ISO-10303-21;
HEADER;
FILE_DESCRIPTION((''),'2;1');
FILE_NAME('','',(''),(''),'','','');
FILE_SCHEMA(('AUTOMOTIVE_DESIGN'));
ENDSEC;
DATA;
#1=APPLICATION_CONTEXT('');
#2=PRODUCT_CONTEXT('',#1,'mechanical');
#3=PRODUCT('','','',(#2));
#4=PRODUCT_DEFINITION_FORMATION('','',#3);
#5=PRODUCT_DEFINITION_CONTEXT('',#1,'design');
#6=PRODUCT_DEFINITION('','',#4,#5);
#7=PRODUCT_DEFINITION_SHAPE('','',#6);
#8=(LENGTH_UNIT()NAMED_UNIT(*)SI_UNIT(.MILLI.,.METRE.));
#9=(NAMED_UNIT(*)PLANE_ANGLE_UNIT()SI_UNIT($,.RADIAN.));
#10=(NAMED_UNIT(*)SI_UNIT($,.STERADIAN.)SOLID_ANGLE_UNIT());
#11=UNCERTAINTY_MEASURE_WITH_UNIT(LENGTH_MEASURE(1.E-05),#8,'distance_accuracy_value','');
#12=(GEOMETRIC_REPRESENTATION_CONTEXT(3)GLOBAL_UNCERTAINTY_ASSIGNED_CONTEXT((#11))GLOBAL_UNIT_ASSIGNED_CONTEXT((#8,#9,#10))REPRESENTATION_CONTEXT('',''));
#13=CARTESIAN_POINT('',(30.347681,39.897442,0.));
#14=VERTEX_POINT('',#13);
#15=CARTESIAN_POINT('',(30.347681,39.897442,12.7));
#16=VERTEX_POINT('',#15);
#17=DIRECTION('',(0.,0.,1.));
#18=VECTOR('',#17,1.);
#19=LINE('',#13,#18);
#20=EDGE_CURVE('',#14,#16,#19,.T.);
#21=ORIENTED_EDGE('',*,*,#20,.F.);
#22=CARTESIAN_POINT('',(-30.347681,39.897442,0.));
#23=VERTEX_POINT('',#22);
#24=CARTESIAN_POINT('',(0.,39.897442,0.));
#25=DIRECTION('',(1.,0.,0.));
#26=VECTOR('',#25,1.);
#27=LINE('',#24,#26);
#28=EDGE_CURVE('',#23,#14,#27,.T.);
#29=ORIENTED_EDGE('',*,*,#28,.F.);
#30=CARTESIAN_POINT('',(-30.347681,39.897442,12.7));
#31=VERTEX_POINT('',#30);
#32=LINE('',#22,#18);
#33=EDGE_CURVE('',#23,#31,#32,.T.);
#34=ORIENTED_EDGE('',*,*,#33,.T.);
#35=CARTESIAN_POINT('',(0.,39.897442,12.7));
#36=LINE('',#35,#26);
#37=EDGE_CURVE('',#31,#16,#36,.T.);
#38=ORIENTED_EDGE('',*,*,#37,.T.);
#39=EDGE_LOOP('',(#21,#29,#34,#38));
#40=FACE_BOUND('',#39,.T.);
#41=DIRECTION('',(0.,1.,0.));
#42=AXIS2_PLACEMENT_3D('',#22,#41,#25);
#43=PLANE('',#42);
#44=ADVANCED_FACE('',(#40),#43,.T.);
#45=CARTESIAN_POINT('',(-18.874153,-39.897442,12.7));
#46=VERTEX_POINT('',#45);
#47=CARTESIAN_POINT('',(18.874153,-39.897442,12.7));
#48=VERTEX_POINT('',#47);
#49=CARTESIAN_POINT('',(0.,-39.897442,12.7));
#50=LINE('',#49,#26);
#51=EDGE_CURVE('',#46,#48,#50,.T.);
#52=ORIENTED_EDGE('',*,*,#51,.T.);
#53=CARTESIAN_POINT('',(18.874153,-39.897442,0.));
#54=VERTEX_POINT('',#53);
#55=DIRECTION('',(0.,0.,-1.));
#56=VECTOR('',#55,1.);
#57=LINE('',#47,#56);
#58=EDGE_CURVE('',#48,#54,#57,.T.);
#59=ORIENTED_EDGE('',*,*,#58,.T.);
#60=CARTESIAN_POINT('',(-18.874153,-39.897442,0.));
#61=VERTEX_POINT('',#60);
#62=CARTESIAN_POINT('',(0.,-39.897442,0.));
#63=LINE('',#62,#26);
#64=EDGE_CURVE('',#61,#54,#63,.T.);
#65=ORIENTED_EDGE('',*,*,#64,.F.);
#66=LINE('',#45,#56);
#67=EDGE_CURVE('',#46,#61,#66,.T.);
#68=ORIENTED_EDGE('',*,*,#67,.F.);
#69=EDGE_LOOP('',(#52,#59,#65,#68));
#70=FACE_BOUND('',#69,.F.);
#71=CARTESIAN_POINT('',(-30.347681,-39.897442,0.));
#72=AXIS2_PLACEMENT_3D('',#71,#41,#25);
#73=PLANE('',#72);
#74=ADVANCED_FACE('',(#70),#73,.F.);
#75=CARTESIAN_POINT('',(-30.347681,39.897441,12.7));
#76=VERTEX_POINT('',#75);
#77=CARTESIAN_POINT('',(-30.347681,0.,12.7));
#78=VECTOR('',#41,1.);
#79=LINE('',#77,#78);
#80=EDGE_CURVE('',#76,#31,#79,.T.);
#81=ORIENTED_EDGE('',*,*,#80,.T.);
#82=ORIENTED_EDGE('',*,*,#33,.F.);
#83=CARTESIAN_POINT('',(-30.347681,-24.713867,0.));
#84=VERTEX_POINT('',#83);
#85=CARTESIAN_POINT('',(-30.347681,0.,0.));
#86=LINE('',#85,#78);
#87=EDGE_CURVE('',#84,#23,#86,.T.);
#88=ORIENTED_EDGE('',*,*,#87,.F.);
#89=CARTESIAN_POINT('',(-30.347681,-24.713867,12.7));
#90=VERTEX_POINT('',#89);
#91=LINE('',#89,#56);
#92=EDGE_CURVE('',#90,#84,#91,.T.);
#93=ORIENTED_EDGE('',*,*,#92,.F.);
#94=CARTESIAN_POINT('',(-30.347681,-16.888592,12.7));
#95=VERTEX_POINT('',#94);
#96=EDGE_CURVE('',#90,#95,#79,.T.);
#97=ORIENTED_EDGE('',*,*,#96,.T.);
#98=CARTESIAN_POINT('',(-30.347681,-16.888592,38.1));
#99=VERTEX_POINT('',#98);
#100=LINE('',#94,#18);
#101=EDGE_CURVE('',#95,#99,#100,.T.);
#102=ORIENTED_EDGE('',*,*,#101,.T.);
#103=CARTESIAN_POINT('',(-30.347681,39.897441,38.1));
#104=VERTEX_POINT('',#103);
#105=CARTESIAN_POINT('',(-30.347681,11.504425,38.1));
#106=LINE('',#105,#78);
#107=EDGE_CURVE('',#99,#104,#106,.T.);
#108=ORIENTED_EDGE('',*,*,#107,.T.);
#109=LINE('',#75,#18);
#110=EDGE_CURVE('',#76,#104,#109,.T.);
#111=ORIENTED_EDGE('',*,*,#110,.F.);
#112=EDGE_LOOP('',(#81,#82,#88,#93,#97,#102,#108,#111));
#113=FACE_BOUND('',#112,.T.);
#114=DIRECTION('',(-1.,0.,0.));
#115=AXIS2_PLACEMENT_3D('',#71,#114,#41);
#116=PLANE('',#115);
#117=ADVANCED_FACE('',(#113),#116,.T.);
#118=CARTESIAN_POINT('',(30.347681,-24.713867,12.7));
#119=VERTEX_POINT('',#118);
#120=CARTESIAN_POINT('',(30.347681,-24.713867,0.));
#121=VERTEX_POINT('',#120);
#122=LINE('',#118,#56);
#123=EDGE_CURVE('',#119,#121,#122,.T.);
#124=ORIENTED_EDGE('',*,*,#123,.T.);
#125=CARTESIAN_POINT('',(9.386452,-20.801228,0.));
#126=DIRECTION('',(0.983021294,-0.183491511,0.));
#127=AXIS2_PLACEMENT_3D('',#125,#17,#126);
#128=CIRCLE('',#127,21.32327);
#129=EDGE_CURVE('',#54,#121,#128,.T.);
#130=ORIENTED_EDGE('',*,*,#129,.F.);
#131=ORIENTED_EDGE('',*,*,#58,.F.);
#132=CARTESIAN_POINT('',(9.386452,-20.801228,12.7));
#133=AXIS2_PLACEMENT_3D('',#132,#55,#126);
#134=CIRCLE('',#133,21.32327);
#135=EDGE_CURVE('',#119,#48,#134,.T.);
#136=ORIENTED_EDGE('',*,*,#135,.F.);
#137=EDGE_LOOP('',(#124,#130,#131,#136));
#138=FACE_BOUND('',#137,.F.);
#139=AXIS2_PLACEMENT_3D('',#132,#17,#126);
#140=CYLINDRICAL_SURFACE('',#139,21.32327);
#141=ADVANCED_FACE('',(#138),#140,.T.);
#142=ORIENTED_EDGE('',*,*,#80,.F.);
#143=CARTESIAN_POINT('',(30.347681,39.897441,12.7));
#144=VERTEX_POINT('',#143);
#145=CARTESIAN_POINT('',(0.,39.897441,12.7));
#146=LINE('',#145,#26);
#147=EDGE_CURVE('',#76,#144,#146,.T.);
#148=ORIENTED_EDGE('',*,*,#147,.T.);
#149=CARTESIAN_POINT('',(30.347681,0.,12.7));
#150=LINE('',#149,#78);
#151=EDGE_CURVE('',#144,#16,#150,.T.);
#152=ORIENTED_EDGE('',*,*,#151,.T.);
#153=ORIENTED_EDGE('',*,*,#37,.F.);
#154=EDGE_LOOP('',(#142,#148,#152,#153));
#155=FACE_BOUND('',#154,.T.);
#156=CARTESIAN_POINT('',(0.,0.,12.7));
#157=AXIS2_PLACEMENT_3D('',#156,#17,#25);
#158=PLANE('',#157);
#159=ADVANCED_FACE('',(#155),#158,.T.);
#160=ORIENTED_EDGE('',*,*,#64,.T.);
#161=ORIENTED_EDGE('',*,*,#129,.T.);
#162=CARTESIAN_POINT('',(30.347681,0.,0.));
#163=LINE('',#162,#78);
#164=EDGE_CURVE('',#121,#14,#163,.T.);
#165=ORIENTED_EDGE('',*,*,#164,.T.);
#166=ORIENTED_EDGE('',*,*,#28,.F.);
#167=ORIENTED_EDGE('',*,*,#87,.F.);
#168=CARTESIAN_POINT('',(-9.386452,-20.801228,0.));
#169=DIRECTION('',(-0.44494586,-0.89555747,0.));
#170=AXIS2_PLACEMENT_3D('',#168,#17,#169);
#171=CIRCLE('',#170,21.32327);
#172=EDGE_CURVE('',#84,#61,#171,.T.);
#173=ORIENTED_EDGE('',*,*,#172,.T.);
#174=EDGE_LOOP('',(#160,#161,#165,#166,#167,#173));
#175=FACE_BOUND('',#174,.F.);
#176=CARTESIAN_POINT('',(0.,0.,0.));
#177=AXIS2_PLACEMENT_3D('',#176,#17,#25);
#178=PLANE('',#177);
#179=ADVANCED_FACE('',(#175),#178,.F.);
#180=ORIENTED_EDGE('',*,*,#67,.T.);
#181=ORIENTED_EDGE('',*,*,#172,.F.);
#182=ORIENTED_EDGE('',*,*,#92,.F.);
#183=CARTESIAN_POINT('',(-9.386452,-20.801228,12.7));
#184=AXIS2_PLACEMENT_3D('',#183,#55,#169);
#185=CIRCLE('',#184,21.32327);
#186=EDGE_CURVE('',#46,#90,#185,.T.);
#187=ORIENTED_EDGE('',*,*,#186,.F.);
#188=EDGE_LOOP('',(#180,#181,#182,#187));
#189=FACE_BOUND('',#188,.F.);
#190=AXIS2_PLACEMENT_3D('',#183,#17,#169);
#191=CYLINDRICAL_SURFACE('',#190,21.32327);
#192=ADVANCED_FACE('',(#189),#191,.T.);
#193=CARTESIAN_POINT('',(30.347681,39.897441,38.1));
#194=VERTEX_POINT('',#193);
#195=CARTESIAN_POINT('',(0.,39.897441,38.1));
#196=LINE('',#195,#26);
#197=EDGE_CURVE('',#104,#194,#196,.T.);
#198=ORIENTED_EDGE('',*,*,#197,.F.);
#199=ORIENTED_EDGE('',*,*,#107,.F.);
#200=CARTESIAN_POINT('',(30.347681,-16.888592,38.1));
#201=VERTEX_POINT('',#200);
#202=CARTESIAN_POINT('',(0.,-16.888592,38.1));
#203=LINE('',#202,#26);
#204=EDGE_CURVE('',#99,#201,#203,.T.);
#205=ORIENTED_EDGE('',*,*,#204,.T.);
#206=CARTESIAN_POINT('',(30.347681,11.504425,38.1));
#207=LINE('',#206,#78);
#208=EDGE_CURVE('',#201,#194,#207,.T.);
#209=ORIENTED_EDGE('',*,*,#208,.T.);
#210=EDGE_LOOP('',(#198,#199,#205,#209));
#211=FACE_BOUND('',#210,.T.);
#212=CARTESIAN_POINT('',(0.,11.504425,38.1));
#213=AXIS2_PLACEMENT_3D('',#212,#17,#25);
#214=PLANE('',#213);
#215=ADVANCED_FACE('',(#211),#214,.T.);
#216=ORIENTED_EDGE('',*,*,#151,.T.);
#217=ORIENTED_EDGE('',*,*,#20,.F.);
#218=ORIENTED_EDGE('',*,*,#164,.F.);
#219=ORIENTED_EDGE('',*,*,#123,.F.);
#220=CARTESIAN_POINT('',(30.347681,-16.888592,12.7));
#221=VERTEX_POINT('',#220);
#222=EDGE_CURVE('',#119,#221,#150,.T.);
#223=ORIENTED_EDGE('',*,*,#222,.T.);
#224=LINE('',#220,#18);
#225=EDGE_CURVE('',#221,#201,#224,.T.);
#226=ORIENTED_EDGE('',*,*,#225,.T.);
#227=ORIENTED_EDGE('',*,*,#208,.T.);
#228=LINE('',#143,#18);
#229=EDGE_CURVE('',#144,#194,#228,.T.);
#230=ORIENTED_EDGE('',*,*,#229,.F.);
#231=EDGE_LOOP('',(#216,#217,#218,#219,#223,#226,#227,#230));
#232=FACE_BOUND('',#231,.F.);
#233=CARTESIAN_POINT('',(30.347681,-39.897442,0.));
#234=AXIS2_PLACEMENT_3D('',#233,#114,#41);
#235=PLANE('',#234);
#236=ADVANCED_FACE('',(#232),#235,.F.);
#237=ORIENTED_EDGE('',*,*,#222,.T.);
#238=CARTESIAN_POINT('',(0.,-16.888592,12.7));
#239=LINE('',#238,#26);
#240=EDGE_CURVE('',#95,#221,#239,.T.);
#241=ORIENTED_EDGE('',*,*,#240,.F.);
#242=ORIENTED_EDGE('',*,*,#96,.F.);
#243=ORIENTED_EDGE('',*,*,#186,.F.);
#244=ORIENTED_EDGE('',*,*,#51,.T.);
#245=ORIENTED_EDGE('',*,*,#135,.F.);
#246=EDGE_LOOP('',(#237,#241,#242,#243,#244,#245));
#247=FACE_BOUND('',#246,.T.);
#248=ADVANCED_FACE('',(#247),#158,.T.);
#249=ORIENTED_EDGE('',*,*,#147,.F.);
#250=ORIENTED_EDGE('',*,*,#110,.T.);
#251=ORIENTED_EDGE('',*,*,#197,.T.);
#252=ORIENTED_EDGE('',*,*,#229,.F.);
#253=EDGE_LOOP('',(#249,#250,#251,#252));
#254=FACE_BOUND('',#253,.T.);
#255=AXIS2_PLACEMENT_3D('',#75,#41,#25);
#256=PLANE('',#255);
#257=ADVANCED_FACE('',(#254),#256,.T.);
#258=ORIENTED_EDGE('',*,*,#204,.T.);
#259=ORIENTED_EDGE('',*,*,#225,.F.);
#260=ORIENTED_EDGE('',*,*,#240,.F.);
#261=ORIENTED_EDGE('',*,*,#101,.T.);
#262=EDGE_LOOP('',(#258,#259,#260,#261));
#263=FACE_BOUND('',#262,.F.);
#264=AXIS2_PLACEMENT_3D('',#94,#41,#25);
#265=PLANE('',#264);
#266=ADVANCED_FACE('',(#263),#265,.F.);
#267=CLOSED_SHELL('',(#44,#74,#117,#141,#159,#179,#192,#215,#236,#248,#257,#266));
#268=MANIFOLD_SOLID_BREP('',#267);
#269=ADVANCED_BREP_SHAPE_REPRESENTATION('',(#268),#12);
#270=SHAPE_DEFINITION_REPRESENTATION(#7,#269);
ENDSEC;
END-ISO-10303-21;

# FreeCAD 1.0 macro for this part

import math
import FreeCAD as App
import Part
import Sketcher
from FreeCAD import Vector


def add_polygon(sketch, points):
    """Adds a closed chain of lines whose ends are joined by coincident constraints."""
    first, n = sketch.GeometryCount, len(points)
    for a, b in zip(points, points[1:] + points[:1]):
        sketch.addGeometry(Part.LineSegment(App.Vector(*a, 0), App.Vector(*b, 0)), False)
    for i in range(n):
        sketch.addConstraint(Sketcher.Constraint("Coincident", first + i, 2, first + (i + 1) % n, 1))

doc = App.newDocument("Part")
params = doc.addObject("Spreadsheet::Sheet", "Params")
for row, (alias, value) in enumerate([
    ("pad1_length", "0.5 in"),
    ("pad2_length", "1 in"),
    ("pocket1_length", "1 in"),
], start=1):
    params.set(f"A{row}", alias)
    params.set(f"B{row}", "=" + value)
    params.setAlias(f"B{row}", alias)

body = doc.addObject("PartDesign::Body", "Body")

# Sketch on XY plane
sketch1 = body.newObject("Sketcher::SketchObject", "Sketch")
sketch1.AttachmentSupport = (doc.getObject("XY_Plane"), [""])
sketch1.MapMode = "FlatFace"
add_polygon(sketch1, [(-30, 40), (-30, -40), (30, -40), (30, 40)])  # lines 0-3
sketch1.addConstraint(Sketcher.Constraint("Vertical", 0))
sketch1.addConstraint(Sketcher.Constraint("Horizontal", 1))
sketch1.addConstraint(Sketcher.Constraint("Vertical", 2))
sketch1.addConstraint(Sketcher.Constraint("Horizontal", 3))
sketch1.addConstraint(Sketcher.Constraint("Symmetric", 0, 2, 2, 2, -1, 1))
sketch1.addConstraint(Sketcher.Constraint("DistanceX", 1, 1, 1, 2, 60.695362))
sketch1.addConstraint(Sketcher.Constraint("DistanceY", 0, 2, 0, 1, 79.794884))
pad1 = body.newObject("PartDesign::Pad", "Pad")
pad1.Profile = sketch1
pad1.setExpression("Length", "Params.pad1_length")

# Sketch on XY plane
sketch2 = body.newObject("Sketcher::SketchObject", "Sketch001")
sketch2.AttachmentSupport = (doc.getObject("XY_Plane"), [""])
sketch2.MapMode = "FlatFace"
sketch2.AttachmentOffset = App.Placement(Vector(0, 0, 0.5 * 25.4), App.Rotation())
add_polygon(sketch2, [(-30, 40), (-30, -17), (30, -17), (30, 40)])  # lines 0-3
sketch2.addConstraint(Sketcher.Constraint("Vertical", 0))
sketch2.addConstraint(Sketcher.Constraint("Horizontal", 1))
sketch2.addConstraint(Sketcher.Constraint("Vertical", 2))
sketch2.addConstraint(Sketcher.Constraint("Horizontal", 3))
sketch2.addConstraint(Sketcher.Constraint("DistanceX", 1, 1, 1, 2, 60.695362))
sketch2.addConstraint(Sketcher.Constraint("DistanceY", 0, 2, 0, 1, 56.786033))
sketch2.addConstraint(Sketcher.Constraint("DistanceX", 0, 2, -1, 1, 30.347681))
sketch2.addConstraint(Sketcher.Constraint("DistanceY", 0, 2, -1, 1, 16.888592))
pad2 = body.newObject("PartDesign::Pad", "Pad001")
pad2.Profile = sketch2
pad2.setExpression("Length", "Params.pad2_length")

# Sketch on XY plane
sketch3 = body.newObject("Sketcher::SketchObject", "Sketch002")
sketch3.AttachmentSupport = (doc.getObject("XY_Plane"), [""])
sketch3.MapMode = "FlatFace"
sketch3.AttachmentOffset = App.Placement(Vector(0, 0, 0.5 * 25.4), App.Rotation())
sketch3.addGeometry(Part.LineSegment(Vector(30, -40, 0), Vector(30, -25, 0)), False)
sketch3.addGeometry(Part.ArcOfCircle(Part.Circle(Vector(9, -21, 0), Vector(0, 0, 1), 21), math.radians(-64), math.radians(-11)), False)
sketch3.addGeometry(Part.LineSegment(Vector(19, -40, 0), Vector(30, -40, 0)), False)
sketch3.addGeometry(Part.ArcOfCircle(Part.Circle(Vector(-9, -21, 0), Vector(0, 0, 1), 21), math.radians(-169), math.radians(-116)), False)
sketch3.addGeometry(Part.LineSegment(Vector(-30, -25, 0), Vector(-30, -40, 0)), False)
sketch3.addGeometry(Part.LineSegment(Vector(-30, -40, 0), Vector(-19, -40, 0)), False)
sketch3.addConstraint(Sketcher.Constraint("Coincident", 0, 2, 1, 2))
sketch3.addConstraint(Sketcher.Constraint("Coincident", 1, 1, 2, 1))
sketch3.addConstraint(Sketcher.Constraint("Coincident", 2, 2, 0, 1))
sketch3.addConstraint(Sketcher.Constraint("Coincident", 3, 1, 4, 1))
sketch3.addConstraint(Sketcher.Constraint("Coincident", 4, 2, 5, 1))
sketch3.addConstraint(Sketcher.Constraint("Coincident", 5, 2, 3, 2))
sketch3.addConstraint(Sketcher.Constraint("Vertical", 0))
sketch3.addConstraint(Sketcher.Constraint("Horizontal", 2))
sketch3.addConstraint(Sketcher.Constraint("Vertical", 4))
sketch3.addConstraint(Sketcher.Constraint("Horizontal", 5))
sketch3.addConstraint(Sketcher.Constraint("Equal", 1, 3))
sketch3.addConstraint(Sketcher.Constraint("Symmetric", 1, 3, 3, 3, -2))
sketch3.addConstraint(Sketcher.Constraint("Symmetric", 2, 2, 4, 2, -2))
sketch3.addConstraint(Sketcher.Constraint("Radius", 1, 21.32327))
sketch3.addConstraint(Sketcher.Constraint("DistanceX", 2, 1, 2, 2, 11.473528))
sketch3.addConstraint(Sketcher.Constraint("DistanceX", 1, 3, 1, 1, 9.487701))
sketch3.addConstraint(Sketcher.Constraint("DistanceX", -1, 1, 0, 2, 30.347681))
sketch3.addConstraint(Sketcher.Constraint("DistanceY", 2, 2, -1, 1, 39.897442))
pocket1 = body.newObject("PartDesign::Pocket", "Pocket")
pocket1.Profile = sketch3
pocket1.setExpression("Length", "Params.pocket1_length")

doc.recompute()
